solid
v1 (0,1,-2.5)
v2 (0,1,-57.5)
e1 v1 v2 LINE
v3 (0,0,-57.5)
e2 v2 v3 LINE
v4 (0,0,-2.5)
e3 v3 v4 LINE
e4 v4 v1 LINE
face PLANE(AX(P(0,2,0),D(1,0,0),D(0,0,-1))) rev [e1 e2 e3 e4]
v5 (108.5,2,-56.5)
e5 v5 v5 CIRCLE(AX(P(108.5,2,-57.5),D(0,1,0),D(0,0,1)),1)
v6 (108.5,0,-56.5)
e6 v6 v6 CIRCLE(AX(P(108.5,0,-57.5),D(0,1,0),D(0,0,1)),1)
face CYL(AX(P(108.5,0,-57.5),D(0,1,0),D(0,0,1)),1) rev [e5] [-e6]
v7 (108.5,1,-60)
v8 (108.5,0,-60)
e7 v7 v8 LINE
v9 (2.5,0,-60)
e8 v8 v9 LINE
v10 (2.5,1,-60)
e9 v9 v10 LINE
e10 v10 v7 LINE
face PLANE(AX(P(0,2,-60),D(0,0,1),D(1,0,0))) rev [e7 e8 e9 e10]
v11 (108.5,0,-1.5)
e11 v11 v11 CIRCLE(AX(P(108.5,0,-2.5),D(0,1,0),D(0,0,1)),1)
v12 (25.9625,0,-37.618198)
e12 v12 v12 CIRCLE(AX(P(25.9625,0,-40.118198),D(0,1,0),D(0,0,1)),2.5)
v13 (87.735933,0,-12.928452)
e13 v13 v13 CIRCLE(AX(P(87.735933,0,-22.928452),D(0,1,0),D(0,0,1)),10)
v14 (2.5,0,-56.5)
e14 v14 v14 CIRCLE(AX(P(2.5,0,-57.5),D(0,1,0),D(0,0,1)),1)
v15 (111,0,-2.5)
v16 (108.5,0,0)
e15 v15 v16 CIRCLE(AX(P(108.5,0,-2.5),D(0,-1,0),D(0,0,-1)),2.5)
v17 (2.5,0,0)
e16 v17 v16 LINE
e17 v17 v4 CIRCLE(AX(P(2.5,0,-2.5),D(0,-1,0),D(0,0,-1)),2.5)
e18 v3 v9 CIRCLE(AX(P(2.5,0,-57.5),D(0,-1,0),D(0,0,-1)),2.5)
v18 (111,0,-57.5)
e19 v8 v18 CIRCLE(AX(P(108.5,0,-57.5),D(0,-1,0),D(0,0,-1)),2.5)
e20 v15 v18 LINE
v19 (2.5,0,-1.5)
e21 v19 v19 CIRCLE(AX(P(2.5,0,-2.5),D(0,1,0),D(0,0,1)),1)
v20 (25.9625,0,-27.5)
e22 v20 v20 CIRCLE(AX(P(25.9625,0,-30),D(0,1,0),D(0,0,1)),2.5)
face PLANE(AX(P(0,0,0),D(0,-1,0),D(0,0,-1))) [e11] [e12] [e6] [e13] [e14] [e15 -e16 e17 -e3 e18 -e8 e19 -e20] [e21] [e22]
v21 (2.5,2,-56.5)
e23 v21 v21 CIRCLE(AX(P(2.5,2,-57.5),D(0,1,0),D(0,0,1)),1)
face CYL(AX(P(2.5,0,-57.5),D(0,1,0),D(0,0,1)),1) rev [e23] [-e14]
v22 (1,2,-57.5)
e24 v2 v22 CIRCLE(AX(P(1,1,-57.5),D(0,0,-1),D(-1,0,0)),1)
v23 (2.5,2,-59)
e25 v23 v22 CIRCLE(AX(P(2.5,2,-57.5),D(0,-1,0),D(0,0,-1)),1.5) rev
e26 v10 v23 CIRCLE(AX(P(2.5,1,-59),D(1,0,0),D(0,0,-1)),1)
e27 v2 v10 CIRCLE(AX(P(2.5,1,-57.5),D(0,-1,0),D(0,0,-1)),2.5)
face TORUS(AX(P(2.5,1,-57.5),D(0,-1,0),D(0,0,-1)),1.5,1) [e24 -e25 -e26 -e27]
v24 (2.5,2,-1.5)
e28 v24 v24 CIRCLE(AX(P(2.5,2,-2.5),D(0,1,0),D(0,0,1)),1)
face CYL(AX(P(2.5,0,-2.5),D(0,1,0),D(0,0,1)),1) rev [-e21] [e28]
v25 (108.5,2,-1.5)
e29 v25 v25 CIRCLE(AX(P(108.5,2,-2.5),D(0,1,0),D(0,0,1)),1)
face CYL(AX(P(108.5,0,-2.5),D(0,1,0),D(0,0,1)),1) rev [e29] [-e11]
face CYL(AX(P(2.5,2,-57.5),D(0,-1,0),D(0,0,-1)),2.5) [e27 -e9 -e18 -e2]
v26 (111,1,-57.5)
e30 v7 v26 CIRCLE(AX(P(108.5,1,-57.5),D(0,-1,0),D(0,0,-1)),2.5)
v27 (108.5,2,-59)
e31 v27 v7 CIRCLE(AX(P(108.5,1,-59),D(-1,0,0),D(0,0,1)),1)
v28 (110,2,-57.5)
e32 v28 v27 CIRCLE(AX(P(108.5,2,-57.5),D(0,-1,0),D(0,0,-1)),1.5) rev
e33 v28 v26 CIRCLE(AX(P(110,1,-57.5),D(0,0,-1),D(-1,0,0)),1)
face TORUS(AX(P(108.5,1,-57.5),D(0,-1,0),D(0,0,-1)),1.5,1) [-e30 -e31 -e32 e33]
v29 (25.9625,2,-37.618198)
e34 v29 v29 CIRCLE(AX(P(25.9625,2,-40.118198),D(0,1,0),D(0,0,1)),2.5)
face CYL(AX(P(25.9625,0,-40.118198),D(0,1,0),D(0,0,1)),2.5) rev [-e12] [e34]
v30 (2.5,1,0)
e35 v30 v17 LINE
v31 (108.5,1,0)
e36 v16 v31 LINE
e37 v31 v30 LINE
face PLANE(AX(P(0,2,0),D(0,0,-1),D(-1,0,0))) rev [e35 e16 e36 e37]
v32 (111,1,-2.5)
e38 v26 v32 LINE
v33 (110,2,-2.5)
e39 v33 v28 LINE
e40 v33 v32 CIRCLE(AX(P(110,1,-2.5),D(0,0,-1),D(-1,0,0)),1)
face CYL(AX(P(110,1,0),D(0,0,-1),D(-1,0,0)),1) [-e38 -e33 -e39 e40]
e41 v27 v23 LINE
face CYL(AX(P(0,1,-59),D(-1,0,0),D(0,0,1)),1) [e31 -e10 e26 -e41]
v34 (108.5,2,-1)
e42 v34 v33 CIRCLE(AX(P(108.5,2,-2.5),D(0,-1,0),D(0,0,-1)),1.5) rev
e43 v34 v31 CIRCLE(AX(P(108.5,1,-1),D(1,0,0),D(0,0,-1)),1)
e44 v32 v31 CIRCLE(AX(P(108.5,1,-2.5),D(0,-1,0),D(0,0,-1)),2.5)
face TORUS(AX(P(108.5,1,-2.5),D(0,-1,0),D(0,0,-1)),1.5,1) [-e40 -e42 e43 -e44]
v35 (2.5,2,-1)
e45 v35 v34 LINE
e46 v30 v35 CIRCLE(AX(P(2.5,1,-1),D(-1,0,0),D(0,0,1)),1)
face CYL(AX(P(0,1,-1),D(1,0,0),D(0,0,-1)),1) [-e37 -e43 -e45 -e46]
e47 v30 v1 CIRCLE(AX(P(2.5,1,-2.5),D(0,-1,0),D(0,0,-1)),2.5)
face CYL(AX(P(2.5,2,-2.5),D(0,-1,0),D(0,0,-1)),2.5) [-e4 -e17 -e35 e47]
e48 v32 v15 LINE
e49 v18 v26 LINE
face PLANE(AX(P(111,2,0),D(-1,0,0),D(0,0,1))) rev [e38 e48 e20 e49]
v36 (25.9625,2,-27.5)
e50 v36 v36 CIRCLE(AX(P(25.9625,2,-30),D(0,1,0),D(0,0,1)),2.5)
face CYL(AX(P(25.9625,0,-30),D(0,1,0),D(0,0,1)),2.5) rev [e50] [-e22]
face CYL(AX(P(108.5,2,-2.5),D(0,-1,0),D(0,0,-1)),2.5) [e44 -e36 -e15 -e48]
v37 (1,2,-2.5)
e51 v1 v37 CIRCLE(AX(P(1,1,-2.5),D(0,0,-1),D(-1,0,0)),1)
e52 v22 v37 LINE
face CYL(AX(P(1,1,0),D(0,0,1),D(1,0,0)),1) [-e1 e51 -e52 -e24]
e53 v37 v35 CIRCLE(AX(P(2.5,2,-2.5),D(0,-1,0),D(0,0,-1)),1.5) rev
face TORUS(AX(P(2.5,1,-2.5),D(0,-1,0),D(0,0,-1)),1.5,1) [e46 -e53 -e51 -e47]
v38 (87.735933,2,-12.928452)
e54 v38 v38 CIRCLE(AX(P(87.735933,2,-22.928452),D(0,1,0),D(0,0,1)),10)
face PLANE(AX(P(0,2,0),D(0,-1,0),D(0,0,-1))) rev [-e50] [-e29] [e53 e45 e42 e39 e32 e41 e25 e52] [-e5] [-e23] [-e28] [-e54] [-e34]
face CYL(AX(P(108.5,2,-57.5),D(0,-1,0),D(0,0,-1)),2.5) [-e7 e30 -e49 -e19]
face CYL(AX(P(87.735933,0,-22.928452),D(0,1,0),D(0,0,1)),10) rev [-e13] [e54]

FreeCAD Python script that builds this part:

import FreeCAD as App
import Part
import Sketcher

V = App.Vector


def edges_at(feature, points):
    """Names of the edges that pass closest to the given points."""
    edges = feature.Shape.Edges
    near = lambda p: min(range(len(edges)), key=lambda i: edges[i].distToShape(Part.Vertex(*p))[0])
    return sorted({f"Edge{near(p) + 1}" for p in points})

doc = App.newDocument("Part")
body = doc.addObject("PartDesign::Body", "Body")

# Sketch on XZ plane
sketch1 = doc.addObject("Sketcher::SketchObject", "Sketch")
body.addObject(sketch1)
sketch1.AttachmentSupport = (doc.XZ_Plane, [""])
sketch1.MapMode = "FlatFace"
sketch1.addGeometry([
    Part.LineSegment(V(0, -60, 0), V(0, 0, 0)),
    Part.LineSegment(V(0, 0, 0), V(111, 0, 0)),
    Part.LineSegment(V(111, 0, 0), V(111, -60, 0)),
    Part.LineSegment(V(111, -60, 0), V(0, -60, 0)),
], False)
sketch1.addConstraint([
    Sketcher.Constraint("Coincident", 0, 2, 1, 1),
    Sketcher.Constraint("Coincident", 1, 2, 2, 1),
    Sketcher.Constraint("Coincident", 2, 2, 3, 1),
    Sketcher.Constraint("Coincident", 3, 2, 0, 1),
    Sketcher.Constraint("Vertical", 0),
    Sketcher.Constraint("Horizontal", 1),
    Sketcher.Constraint("Vertical", 2),
    Sketcher.Constraint("Horizontal", 3),
    Sketcher.Constraint("Coincident", 0, 2, -1, 1),
    Sketcher.Constraint("DistanceX", 1, 1, 1, 2, 111.0),
    Sketcher.Constraint("DistanceY", 0, 1, 0, 2, 60.0),
])
pad1 = doc.addObject("PartDesign::Pad", "Pad")
body.addObject(pad1)
pad1.Profile = sketch1
pad1.Length = 2
pad1.Reversed = True

# Sketch on XZ plane
sketch2 = doc.addObject("Sketcher::SketchObject", "Sketch001")
body.addObject(sketch2)
sketch2.AttachmentSupport = (doc.XZ_Plane, [""])
sketch2.MapMode = "FlatFace"
sketch2.AttachmentOffset = App.Placement(V(0, 0, -2), App.Rotation())
sketch2.addGeometry([
    Part.Circle(V(87.7, -22.9, 0), V(0, 0, 1), 10),  # 0
    Part.Circle(V(2.5, -57.5, 0), V(0, 0, 1), 1),  # 1
    Part.Circle(V(108.5, -57.5, 0), V(0, 0, 1), 1),  # 2
    Part.Circle(V(108.5, -2.5, 0), V(0, 0, 1), 1),  # 3
    Part.Circle(V(2.5, -2.5, 0), V(0, 0, 1), 1),  # 4
    Part.Circle(V(26, -30, 0), V(0, 0, 1), 2.5),  # 5
    Part.Circle(V(26, -40.1, 0), V(0, 0, 1), 2.5),  # 6
], False)
sketch2.addConstraint([
    Sketcher.Constraint("Equal", 1, 2),
    Sketcher.Constraint("Equal", 2, 3),
    Sketcher.Constraint("Equal", 3, 4),
    Sketcher.Constraint("Equal", 5, 6),
    Sketcher.Constraint("Horizontal", 1, 3, 2, 3),
    Sketcher.Constraint("Horizontal", 3, 3, 4, 3),
    Sketcher.Constraint("Vertical", 2, 3, 3, 3),
    Sketcher.Constraint("Vertical", 1, 3, 4, 3),
    Sketcher.Constraint("Vertical", 5, 3, 6, 3),
    Sketcher.Constraint("Diameter", 0, 20.0),
    Sketcher.Constraint("Diameter", 1, 2.0),
    Sketcher.Constraint("Diameter", 5, 5.0),
    Sketcher.Constraint("DistanceY", 5, 3, -1, 1, 30.0),
    Sketcher.Constraint("DistanceX", 1, 3, 2, 3, 106.0),
    Sketcher.Constraint("DistanceY", 2, 3, 3, 3, 55.0),
    Sketcher.Constraint("DistanceX", -1, 1, 1, 3, 2.5),
    Sketcher.Constraint("DistanceY", 1, 3, -1, 1, 57.5),
    Sketcher.Constraint("DistanceX", -1, 1, 5, 3, 25.9625),
    Sketcher.Constraint("DistanceY", 6, 3, -1, 1, 40.118198),
    Sketcher.Constraint("DistanceY", 0, 3, -1, 1, 22.928452),
    Sketcher.Constraint("DistanceX", -1, 1, 0, 3, 87.735933),
])
pocket1 = doc.addObject("PartDesign::Pocket", "Pocket")
body.addObject(pocket1)
pocket1.Profile = sketch2
pocket1.Type = "ThroughAll"
pocket1.Reversed = True
doc.recompute()

fillet = doc.addObject("PartDesign::Fillet", "Fillet")
body.addObject(fillet)
fillet.Base = (pocket1, edges_at(pocket1, [
    (0, 1, -60),
    (111, 1, -60),
    (111, 1, 0),
    (0, 1, 0),
]))
fillet.Radius = 2.5
doc.recompute()

fillet2 = doc.addObject("PartDesign::Fillet", "Fillet001")
body.addObject(fillet2)
fillet2.Base = (fillet, edges_at(fillet, [
    (0, 2, -30),
    (55.5, 2, -60),
    (55.5, 2, 0),
    (111, 2, -30),
    (110.268, 2, -0.732),
    (110.268, 2, -59.268),
    (0.732, 2, -0.732),
    (0.732, 2, -59.268),
]))
fillet2.Radius = 1

doc.recompute()
